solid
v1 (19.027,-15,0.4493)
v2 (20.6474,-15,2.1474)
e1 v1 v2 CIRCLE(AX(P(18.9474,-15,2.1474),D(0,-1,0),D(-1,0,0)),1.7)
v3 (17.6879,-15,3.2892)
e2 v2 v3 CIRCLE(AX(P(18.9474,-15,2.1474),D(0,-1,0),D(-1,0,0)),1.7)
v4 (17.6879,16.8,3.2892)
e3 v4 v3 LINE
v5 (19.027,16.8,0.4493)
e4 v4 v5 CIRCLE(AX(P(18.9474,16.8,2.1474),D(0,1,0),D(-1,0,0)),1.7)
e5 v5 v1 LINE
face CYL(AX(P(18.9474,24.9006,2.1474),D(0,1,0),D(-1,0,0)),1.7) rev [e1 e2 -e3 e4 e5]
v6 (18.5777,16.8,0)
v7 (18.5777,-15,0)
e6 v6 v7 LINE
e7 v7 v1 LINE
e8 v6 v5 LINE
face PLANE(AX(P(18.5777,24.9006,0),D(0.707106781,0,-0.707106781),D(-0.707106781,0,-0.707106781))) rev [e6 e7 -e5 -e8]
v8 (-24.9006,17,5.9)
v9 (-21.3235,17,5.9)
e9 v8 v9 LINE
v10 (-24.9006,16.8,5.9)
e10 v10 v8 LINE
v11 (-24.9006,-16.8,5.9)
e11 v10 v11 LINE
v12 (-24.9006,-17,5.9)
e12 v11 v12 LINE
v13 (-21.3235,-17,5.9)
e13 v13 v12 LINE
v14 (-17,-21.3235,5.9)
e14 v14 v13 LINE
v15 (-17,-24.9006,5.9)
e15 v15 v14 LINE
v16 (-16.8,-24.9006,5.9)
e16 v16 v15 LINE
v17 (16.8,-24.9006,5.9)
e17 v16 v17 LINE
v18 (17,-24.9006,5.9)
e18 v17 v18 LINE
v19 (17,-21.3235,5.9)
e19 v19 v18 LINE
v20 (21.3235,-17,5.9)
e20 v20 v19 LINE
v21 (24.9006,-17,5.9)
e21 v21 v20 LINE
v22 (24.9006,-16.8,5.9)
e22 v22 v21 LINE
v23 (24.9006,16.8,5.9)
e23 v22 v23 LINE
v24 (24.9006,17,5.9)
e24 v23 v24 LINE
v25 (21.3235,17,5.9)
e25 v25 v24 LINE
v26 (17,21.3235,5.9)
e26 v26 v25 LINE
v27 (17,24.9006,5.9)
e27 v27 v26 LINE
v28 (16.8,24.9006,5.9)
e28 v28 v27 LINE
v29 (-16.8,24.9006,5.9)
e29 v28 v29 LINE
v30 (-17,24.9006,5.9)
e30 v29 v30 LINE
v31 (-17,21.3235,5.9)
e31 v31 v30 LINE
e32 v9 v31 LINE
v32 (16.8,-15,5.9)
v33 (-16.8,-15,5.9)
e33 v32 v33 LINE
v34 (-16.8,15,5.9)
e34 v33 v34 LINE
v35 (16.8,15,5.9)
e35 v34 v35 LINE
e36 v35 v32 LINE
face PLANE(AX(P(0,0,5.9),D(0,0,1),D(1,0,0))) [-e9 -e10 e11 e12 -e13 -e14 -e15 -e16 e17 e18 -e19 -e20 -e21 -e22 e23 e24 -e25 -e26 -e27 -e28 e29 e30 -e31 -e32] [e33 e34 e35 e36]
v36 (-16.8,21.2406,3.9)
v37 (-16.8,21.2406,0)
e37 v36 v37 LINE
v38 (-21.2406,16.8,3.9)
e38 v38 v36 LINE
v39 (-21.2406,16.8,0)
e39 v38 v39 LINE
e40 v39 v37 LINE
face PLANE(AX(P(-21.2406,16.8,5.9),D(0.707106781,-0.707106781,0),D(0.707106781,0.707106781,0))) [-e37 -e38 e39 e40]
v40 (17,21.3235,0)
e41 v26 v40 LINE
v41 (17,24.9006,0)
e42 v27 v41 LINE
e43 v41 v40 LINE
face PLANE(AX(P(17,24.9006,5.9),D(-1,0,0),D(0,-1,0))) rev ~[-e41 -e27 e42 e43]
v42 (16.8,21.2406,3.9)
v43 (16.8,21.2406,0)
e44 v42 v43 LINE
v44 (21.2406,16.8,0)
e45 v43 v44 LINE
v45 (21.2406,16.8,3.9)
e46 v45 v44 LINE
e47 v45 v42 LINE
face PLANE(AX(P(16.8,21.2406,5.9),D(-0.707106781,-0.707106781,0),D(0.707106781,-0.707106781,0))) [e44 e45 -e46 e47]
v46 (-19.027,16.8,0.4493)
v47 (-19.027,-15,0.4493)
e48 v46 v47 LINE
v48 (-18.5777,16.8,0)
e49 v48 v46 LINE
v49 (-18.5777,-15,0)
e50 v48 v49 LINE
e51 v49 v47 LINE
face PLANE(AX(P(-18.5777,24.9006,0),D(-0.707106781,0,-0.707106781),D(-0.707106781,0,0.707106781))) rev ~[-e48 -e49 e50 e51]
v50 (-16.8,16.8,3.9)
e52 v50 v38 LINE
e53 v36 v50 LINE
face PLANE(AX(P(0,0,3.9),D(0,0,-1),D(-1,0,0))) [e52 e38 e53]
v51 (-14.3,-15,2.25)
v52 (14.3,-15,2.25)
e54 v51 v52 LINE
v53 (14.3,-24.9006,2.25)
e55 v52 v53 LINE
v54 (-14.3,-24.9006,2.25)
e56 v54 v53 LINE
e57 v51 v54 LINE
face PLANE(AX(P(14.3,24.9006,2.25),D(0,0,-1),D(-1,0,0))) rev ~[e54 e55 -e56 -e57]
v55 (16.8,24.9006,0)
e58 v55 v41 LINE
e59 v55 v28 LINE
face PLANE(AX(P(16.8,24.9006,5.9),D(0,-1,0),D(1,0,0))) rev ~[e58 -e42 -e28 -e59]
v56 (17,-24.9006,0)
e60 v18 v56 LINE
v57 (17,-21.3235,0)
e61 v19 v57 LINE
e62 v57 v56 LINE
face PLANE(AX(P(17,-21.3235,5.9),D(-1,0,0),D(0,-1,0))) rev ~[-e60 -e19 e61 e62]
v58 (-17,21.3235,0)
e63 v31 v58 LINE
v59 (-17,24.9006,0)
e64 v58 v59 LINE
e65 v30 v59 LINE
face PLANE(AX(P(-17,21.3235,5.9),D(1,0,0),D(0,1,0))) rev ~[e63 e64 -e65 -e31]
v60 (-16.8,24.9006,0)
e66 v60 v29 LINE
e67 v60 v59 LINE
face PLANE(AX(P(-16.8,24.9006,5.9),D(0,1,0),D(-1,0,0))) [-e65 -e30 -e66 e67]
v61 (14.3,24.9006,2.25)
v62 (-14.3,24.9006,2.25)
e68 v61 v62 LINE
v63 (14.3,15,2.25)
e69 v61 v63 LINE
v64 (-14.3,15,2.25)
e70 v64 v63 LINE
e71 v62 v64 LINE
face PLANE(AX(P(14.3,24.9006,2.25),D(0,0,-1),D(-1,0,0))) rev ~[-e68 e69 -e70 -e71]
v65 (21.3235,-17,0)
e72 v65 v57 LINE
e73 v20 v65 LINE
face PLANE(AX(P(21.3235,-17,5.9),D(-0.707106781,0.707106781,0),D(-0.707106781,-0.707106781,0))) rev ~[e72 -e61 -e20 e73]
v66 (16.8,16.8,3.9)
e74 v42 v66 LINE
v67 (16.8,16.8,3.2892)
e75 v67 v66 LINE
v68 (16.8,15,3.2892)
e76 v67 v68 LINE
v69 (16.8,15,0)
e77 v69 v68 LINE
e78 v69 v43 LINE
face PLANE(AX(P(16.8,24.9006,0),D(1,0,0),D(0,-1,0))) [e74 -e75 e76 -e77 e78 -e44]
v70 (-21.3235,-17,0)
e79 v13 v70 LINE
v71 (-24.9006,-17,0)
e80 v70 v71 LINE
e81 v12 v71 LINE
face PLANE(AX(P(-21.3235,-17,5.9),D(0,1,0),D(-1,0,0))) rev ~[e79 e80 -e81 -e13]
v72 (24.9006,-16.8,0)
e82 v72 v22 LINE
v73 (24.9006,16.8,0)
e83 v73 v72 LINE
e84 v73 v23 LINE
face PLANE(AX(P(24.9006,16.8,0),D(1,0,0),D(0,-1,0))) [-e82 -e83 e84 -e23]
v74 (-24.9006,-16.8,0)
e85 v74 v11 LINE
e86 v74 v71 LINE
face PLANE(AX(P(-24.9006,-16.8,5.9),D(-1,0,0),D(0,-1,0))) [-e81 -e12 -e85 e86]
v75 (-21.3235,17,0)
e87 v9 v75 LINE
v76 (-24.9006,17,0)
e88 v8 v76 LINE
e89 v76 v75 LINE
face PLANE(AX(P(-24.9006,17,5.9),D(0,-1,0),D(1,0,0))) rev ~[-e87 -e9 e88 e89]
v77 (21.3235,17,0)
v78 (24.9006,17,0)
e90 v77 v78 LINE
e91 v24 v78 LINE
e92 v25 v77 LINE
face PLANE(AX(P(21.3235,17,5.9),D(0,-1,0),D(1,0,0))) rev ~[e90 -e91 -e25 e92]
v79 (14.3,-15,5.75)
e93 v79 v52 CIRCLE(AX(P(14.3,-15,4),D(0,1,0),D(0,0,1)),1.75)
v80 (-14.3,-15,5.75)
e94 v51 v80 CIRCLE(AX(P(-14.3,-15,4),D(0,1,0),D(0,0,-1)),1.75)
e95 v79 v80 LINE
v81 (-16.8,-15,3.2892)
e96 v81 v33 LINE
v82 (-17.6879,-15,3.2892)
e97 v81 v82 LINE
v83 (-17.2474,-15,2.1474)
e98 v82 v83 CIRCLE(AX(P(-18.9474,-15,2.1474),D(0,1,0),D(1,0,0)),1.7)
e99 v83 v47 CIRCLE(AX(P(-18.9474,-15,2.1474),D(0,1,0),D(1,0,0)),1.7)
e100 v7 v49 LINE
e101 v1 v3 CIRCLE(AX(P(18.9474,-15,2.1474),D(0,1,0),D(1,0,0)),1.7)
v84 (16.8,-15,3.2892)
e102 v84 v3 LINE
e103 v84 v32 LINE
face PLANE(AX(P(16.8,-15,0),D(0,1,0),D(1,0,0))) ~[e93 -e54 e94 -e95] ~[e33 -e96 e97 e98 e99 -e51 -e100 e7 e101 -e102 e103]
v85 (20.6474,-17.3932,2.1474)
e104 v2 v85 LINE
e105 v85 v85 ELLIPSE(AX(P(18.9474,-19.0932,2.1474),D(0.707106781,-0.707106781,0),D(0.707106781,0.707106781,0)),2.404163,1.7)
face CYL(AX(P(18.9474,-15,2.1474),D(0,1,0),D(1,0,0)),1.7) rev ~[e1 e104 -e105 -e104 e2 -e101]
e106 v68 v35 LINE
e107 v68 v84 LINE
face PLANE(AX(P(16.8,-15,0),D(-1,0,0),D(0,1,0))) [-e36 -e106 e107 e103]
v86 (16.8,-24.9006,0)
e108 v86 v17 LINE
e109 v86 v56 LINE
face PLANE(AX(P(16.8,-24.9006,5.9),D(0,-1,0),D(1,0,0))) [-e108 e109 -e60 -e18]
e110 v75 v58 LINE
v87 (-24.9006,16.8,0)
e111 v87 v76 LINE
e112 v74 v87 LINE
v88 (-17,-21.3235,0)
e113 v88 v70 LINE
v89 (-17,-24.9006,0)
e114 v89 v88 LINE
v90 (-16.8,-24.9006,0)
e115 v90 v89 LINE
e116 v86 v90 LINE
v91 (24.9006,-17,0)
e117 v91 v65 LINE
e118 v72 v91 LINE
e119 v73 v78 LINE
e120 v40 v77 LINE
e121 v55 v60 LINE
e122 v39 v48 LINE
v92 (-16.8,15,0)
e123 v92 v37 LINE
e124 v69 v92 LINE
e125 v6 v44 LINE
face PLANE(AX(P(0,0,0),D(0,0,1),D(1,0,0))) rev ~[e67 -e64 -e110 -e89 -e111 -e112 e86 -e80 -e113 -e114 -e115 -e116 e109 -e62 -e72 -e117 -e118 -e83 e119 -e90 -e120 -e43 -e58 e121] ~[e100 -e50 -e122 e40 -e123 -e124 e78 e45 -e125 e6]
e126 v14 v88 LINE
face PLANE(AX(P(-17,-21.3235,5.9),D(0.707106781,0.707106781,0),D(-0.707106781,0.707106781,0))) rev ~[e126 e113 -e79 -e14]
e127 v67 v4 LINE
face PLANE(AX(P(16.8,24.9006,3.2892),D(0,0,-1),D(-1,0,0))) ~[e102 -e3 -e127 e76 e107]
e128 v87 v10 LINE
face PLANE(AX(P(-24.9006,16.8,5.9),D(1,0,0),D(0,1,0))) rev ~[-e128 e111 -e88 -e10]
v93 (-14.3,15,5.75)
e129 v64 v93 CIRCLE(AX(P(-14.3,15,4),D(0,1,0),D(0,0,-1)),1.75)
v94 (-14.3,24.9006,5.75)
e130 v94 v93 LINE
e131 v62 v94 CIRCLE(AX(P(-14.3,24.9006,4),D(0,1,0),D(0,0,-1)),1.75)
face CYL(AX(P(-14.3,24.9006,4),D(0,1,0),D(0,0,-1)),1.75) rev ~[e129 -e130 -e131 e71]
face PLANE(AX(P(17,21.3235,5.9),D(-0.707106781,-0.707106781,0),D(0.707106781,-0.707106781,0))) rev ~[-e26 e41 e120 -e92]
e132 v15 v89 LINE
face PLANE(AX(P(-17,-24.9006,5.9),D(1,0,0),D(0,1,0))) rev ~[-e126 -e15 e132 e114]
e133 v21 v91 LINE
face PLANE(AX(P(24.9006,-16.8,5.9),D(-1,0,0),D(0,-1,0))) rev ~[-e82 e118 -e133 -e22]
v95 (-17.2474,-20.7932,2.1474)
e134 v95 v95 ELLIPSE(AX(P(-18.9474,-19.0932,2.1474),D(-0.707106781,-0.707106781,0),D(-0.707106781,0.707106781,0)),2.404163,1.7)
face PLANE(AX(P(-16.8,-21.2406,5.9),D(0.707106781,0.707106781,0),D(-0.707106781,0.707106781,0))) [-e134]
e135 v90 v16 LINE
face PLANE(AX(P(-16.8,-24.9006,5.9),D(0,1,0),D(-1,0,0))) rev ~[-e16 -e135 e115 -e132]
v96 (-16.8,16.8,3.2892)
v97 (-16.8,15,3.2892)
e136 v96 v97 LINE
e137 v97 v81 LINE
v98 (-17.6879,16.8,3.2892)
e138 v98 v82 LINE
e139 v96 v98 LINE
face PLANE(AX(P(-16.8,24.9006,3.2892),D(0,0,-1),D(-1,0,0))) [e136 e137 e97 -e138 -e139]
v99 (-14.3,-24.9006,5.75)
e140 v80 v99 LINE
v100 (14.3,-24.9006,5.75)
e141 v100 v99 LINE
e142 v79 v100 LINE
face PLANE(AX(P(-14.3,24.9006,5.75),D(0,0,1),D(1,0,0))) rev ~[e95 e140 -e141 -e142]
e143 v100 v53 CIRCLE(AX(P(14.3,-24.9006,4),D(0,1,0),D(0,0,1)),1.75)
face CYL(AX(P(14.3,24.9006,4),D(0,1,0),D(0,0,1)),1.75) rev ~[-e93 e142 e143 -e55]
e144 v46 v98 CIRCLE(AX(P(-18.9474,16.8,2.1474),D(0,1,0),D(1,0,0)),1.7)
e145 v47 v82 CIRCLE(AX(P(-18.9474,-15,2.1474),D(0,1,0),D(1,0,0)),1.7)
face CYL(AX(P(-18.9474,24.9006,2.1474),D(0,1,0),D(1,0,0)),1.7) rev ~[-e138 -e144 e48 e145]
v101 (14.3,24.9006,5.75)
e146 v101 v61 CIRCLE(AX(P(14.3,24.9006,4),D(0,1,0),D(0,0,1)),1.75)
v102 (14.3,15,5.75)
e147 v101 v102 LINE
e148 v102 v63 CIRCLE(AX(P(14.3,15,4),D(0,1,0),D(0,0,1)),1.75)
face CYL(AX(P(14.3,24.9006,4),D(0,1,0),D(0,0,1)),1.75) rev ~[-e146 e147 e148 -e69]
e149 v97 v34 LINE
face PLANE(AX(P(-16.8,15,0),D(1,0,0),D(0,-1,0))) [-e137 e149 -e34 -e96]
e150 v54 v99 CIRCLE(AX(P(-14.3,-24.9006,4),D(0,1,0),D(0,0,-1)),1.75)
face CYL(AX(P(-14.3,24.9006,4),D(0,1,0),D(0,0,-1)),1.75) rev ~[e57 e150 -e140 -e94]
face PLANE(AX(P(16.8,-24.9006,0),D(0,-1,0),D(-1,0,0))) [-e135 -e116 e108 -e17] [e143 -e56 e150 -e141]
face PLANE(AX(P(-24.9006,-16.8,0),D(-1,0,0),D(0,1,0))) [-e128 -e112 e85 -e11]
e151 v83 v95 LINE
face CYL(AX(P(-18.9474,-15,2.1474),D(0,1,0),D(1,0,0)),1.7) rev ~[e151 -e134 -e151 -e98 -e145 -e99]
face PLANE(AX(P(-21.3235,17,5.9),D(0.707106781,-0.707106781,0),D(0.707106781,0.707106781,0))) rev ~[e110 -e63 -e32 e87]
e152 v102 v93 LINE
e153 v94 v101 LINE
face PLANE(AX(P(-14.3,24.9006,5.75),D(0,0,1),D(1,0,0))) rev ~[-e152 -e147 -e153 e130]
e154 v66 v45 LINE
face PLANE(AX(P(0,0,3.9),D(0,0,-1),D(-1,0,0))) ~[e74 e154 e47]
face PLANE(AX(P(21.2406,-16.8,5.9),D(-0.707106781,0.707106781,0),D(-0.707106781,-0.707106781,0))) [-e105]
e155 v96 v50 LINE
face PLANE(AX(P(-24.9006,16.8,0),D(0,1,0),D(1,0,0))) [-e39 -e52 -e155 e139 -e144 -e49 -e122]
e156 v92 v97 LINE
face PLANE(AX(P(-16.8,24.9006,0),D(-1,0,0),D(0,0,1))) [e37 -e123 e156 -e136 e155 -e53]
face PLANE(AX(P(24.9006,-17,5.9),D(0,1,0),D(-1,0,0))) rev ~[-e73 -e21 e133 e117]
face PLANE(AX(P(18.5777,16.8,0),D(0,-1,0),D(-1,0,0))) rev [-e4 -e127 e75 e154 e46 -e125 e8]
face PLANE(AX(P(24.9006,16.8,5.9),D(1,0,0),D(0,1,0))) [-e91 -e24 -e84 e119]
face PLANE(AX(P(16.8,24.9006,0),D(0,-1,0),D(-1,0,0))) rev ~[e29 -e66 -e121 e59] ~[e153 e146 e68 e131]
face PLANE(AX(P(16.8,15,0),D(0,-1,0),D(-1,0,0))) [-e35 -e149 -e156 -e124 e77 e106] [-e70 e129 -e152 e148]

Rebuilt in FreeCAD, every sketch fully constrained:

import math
import FreeCAD as App
import Part
import Sketcher
from FreeCAD import Vector
Q = App.Units.Quantity


def add_polygon(sketch, points):
    """Adds a closed chain of lines whose ends are joined by coincident constraints."""
    first, n = sketch.GeometryCount, len(points)
    for a, b in zip(points, points[1:] + points[:1]):
        sketch.addGeometry(Part.LineSegment(App.Vector(*a, 0), App.Vector(*b, 0)), False)
    for i in range(n):
        sketch.addConstraint(Sketcher.Constraint("Coincident", first + i, 2, first + (i + 1) % n, 1))

doc = App.newDocument("Part")
params = doc.addObject("Spreadsheet::Sheet", "Params")
for row, (alias, value) in enumerate([
    ("sketch1_height", "30 mm"),
    ("sketch1_width", "33.6 mm"),
    ("sketch1_width2", "3.66 mm"),
    ("sketch1_length", "6.28 mm"),
    ("pad1_length", "8 mm"),
    ("sketch2_radius", "1.7 mm"),
    ("pocket1_length", "39.9006 mm"),
    ("sketch3_length", "6.28 mm"),
    ("pocket2_length", "3.9 mm"),
    ("sketch4_diameter", "3.4 mm"),
    ("pocket3_length", "10 mm"),
    ("sketch5_radius", "1.75 mm"),
    ("sketch5_width", "28.6 mm"),
    ("sketch6_height", "30 mm"),
    ("sketch6_width", "33.6 mm"),
    ("sketch6_width2", "3.66 mm"),
    ("sketch6_length", "6.28 mm"),
    ("pocket5_length", "2.1 mm"),
    ("sketch7_width", "0.2 mm"),
    ("sketch7_width2", "3.66 mm"),
    ("sketch7_length", "6.28 mm"),
    ("pad2_length", "5.9 mm"),
], start=1):
    params.set(f"A{row}", alias)
    params.set(f"B{row}", "=" + value)
    params.setAlias(f"B{row}", alias)

body = doc.addObject("PartDesign::Body", "Body")

sketch1 = doc.addObject("Sketcher::SketchObject", "Sketch")
body.addObject(sketch1)
sketch1.AttachmentSupport = (doc.XY_Plane, [""])
sketch1.MapMode = "FlatFace"
add_polygon(sketch1, [(16.8, 21.2406), (16.8, 24.9006), (-16.8, 24.9006), (-16.8, 21.2406), (-21.2406, 16.8), (-24.9006, 16.8), (-24.9006, -16.8), (-21.2406, -16.8), (-16.8, -21.2406), (-16.8, -24.9006), (16.8, -24.9006), (16.8, -21.2406), (21.2406, -16.8), (24.9006, -16.8), (24.9006, 16.8), (21.2406, 16.8)])
add_polygon(sketch1, [(16.8, -15), (-16.8, -15), (-16.8, 15), (16.8, 15)])
sketch1.addConstraint([
    Sketcher.Constraint("Vertical", 0),
    Sketcher.Constraint("Horizontal", 1),
    Sketcher.Constraint("Vertical", 2),
    Sketcher.Constraint("Horizontal", 4),
    Sketcher.Constraint("Vertical", 5),
    Sketcher.Constraint("Horizontal", 6),
    Sketcher.Constraint("Vertical", 8),
    Sketcher.Constraint("Horizontal", 9),
    Sketcher.Constraint("Vertical", 10),
    Sketcher.Constraint("Horizontal", 12),
    Sketcher.Constraint("Vertical", 13),
    Sketcher.Constraint("Horizontal", 14),
    Sketcher.Constraint("Horizontal", 16),
    Sketcher.Constraint("Vertical", 17),
    Sketcher.Constraint("Horizontal", 18),
    Sketcher.Constraint("Vertical", 19),
    Sketcher.Constraint("Symmetric", 0, 2, 8, 2, -1, 1),
    Sketcher.Constraint("Symmetric", 2, 2, 10, 2, -1, 1),
    Sketcher.Constraint("Symmetric", 3, 2, 11, 2, -1, 1),
    Sketcher.Constraint("Symmetric", 5, 2, 13, 2, -1, 1),
    Sketcher.Constraint("Symmetric", 16, 2, 18, 2, -1, 1),
    Sketcher.Constraint("Symmetric", 7, 2, 10, 2, -2),
    Sketcher.Constraint("Symmetric", 6, 2, 11, 2, -2),
    Sketcher.Constraint("Perpendicular", 3, 7),
    Sketcher.Constraint("Perpendicular", 11, 15),
    Sketcher.Constraint("Horizontal", 2, 2, 15, 2),
    Sketcher.Constraint("Vertical", 8, 2, 16, 2),
    Sketcher.Constraint("Equal", 14, 0),
    Sketcher.Constraint("Equal", 18, 5),
    Sketcher.Constraint("DistanceY", 17, 1, 17, 2, Q("30 mm")),
    Sketcher.Constraint("DistanceX", 1, 2, 1, 1, Q("33.6 mm")),
    Sketcher.Constraint("DistanceX", 4, 2, 4, 1, Q("3.66 mm")),
    Sketcher.Constraint("Distance", 3, Q("6.28 mm")),
])
sketch1.setExpression("Constraints[49]", "Params.sketch1_height")
sketch1.setExpression("Constraints[50]", "Params.sketch1_width")
sketch1.setExpression("Constraints[51]", "Params.sketch1_width2")
sketch1.setExpression("Constraints[52]", "Params.sketch1_length")
pad1 = doc.addObject("PartDesign::Pad", "Pad")
body.addObject(pad1)
pad1.Profile = sketch1
pad1.setExpression("Length", "Params.pad1_length")

sketch2 = doc.addObject("Sketcher::SketchObject", "Sketch001")
body.addObject(sketch2)
sketch2.AttachmentSupport = (doc.XZ_Plane, [""])
sketch2.MapMode = "FlatFace"
sketch2.AttachmentOffset = App.Placement(Vector(0, 0, -24.9006), App.Rotation())
sketch2.addGeometry([
    Part.ArcOfCircle(Part.Circle(Vector(-18.9474, 2.1474, 0), Vector(0, 0, 1), 1.7), math.radians(42.193886), math.radians(267.316172)),
    Part.LineSegment(Vector(-17.6879, 3.2892, 0), Vector(-16.8, 3.2892, 0)),
    Part.LineSegment(Vector(-16.8, 3.2892, 0), Vector(-16.8, 0, 0)),
    Part.LineSegment(Vector(-16.8, 0, 0), Vector(-18.5777, 0, 0)),
    Part.LineSegment(Vector(-18.5777, 0, 0), Vector(-19.027, 0.4493, 0)),
], False)
sketch2.addConstraint([
    Sketcher.Constraint("Coincident", 0, 1, 1, 1),
    Sketcher.Constraint("Coincident", 1, 2, 2, 1),
    Sketcher.Constraint("Coincident", 2, 2, 3, 1),
    Sketcher.Constraint("Coincident", 3, 2, 4, 1),
    Sketcher.Constraint("Coincident", 4, 2, 0, 2),
    Sketcher.Constraint("Horizontal", 1),
    Sketcher.Constraint("Vertical", 2),
    Sketcher.Constraint("Horizontal", 3),
    Sketcher.Constraint("PointOnObject", 2, 2, -1),
    Sketcher.Constraint("Radius", 0, Q("1.7 mm")),
    Sketcher.Constraint("Angle", 4, Q("135 deg")),
    Sketcher.Constraint("DistanceX", 1, 2, -1, 1, Q("16.8 mm")),
    Sketcher.Constraint("DistanceX", 1, 1, 1, 2, Q("0.888 mm")),
    Sketcher.Constraint("DistanceY", 4, 2, 0, 1, Q("2.84 mm")),
    Sketcher.Constraint("DistanceX", 3, 2, 3, 1, Q("1.7777 mm")),
    Sketcher.Constraint("DistanceY", 2, 2, 2, 1, Q("3.2892 mm")),
])
sketch2.setExpression("Constraints[9]", "Params.sketch2_radius")
pocket1 = doc.addObject("PartDesign::Pocket", "Pocket")
body.addObject(pocket1)
pocket1.Profile = sketch2
pocket1.setExpression("Length", "Params.pocket1_length")
pocket1.Reversed = True

sketch3 = doc.addObject("Sketcher::SketchObject", "Sketch002")
body.addObject(sketch3)
sketch3.AttachmentSupport = (doc.XY_Plane, [""])
sketch3.MapMode = "FlatFace"
add_polygon(sketch3, [(-21.2406, 16.8), (-16.8, 21.2406), (-16.8, 16.8)])
sketch3.addConstraint([
    Sketcher.Constraint("Vertical", 1),
    Sketcher.Constraint("Horizontal", 2),
    Sketcher.Constraint("Equal", 2, 1),
    Sketcher.Constraint("DistanceX", 0, 2, -1, 1, Q("16.8 mm")),
    Sketcher.Constraint("DistanceY", -1, 1, 1, 2, Q("16.8 mm")),
    Sketcher.Constraint("Distance", 0, Q("6.28 mm")),
])
sketch3.setExpression("Constraints[8]", "Params.sketch3_length")
pocket2 = doc.addObject("PartDesign::Pocket", "Pocket001")
body.addObject(pocket2)
pocket2.Profile = sketch3
pocket2.setExpression("Length", "Params.pocket2_length")
pocket2.Reversed = True
doc.recompute()

mirrored = doc.addObject("PartDesign::Mirrored", "Mirrored")
body.addObject(mirrored)
mirrored.Originals = [pocket2, pocket1]
mirrored.MirrorPlane = (doc.YZ_Plane, [""])
body.Tip = mirrored

sketch4 = doc.addObject("Sketcher::SketchObject", "Sketch003")
body.addObject(sketch4)
sketch4.AttachmentSupport = (doc.XZ_Plane, [""])
sketch4.MapMode = "FlatFace"
sketch4.AttachmentOffset = App.Placement(Vector(0, 0, 15), App.Rotation())
sketch4.addGeometry([
    Part.Circle(Vector(18.9474, 2.1474, 0), Vector(0, 0, 1), 1.7),
    Part.Circle(Vector(-18.9474, 2.1474, 0), Vector(0, 0, 1), 1.7),
], False)
sketch4.addConstraint([
    Sketcher.Constraint("Equal", 0, 1),
    Sketcher.Constraint("Symmetric", 0, 3, 1, 3, -2),
    Sketcher.Constraint("Diameter", 0, Q("3.4 mm")),
    Sketcher.Constraint("DistanceX", -1, 1, 0, 3, Q("18.9474 mm")),
    Sketcher.Constraint("DistanceY", -1, 1, 0, 3, Q("2.1474 mm")),
])
sketch4.setExpression("Constraints[2]", "Params.sketch4_diameter")
pocket3 = doc.addObject("PartDesign::Pocket", "Pocket002")
body.addObject(pocket3)
pocket3.Profile = sketch4
pocket3.setExpression("Length", "Params.pocket3_length")
pocket3.Reversed = True

sketch5 = doc.addObject("Sketcher::SketchObject", "Sketch004")
body.addObject(sketch5)
sketch5.AttachmentSupport = (doc.XZ_Plane, [""])
sketch5.MapMode = "FlatFace"
sketch5.AttachmentOffset = App.Placement(Vector(0, 0, -24.9006), App.Rotation())
sketch5.addGeometry([
    Part.ArcOfCircle(Part.Circle(Vector(-14.3, 4, 0), Vector(0, 0, 1), 1.75), math.radians(90), math.radians(270)),
    Part.LineSegment(Vector(-14.3, 5.75, 0), Vector(14.3, 5.75, 0)),
    Part.ArcOfCircle(Part.Circle(Vector(14.3, 4, 0), Vector(0, 0, 1), 1.75), math.radians(-90), math.radians(90)),
    Part.LineSegment(Vector(14.3, 2.25, 0), Vector(-14.3, 2.25, 0)),
], False)
sketch5.addConstraint([
    Sketcher.Constraint("Tangent", 0, 1, 1, 1),
    Sketcher.Constraint("Tangent", 1, 2, 2, 2),
    Sketcher.Constraint("Tangent", 2, 1, 3, 1),
    Sketcher.Constraint("Tangent", 3, 2, 0, 2),
    Sketcher.Constraint("Horizontal", 1),
    Sketcher.Constraint("Horizontal", 3),
    Sketcher.Constraint("Radius", 0, Q("1.75 mm")),
    Sketcher.Constraint("DistanceX", 1, 1, 1, 2, Q("28.6 mm")),
    Sketcher.Constraint("DistanceY", -1, 1, 0, 3, Q("4 mm")),
    Sketcher.Constraint("DistanceX", 0, 3, -1, 1, Q("14.3 mm")),
])
sketch5.setExpression("Constraints[6]", "Params.sketch5_radius")
sketch5.setExpression("Constraints[7]", "Params.sketch5_width")
pocket4 = doc.addObject("PartDesign::Pocket", "Pocket003")
body.addObject(pocket4)
pocket4.Profile = sketch5
pocket4.Type = "ThroughAll"
pocket4.Reversed = True

sketch6 = doc.addObject("Sketcher::SketchObject", "Sketch005")
body.addObject(sketch6)
sketch6.AttachmentSupport = (doc.XY_Plane, [""])
sketch6.MapMode = "FlatFace"
sketch6.AttachmentOffset = App.Placement(Vector(0, 0, 8), App.Rotation())
add_polygon(sketch6, [(21.2406, 16.8), (16.8, 21.2406), (16.8, 24.9006), (-16.8, 24.9006), (-16.8, 21.2406), (-21.2406, 16.8), (-24.9006, 16.8), (-24.9006, -16.8), (-21.2406, -16.8), (-16.8, -21.2406), (-16.8, -24.9006), (16.8, -24.9006), (16.8, -21.2406), (21.2406, -16.8), (24.9006, -16.8), (24.9006, 16.8)])
add_polygon(sketch6, [(16.8, -15), (-16.8, -15), (-16.8, 15), (16.8, 15)])
sketch6.addConstraint([
    Sketcher.Constraint("Vertical", 1),
    Sketcher.Constraint("Horizontal", 2),
    Sketcher.Constraint("Vertical", 3),
    Sketcher.Constraint("Horizontal", 5),
    Sketcher.Constraint("Vertical", 6),
    Sketcher.Constraint("Horizontal", 7),
    Sketcher.Constraint("Vertical", 9),
    Sketcher.Constraint("Horizontal", 10),
    Sketcher.Constraint("Vertical", 11),
    Sketcher.Constraint("Horizontal", 13),
    Sketcher.Constraint("Vertical", 14),
    Sketcher.Constraint("Horizontal", 15),
    Sketcher.Constraint("Horizontal", 16),
    Sketcher.Constraint("Vertical", 17),
    Sketcher.Constraint("Horizontal", 18),
    Sketcher.Constraint("Vertical", 19),
    Sketcher.Constraint("Symmetric", 0, 2, 8, 2, -1, 1),
    Sketcher.Constraint("Symmetric", 2, 2, 10, 2, -1, 1),
    Sketcher.Constraint("Symmetric", 4, 2, 12, 2, -1, 1),
    Sketcher.Constraint("Symmetric", 6, 2, 14, 2, -1, 1),
    Sketcher.Constraint("Symmetric", 16, 2, 18, 2, -1, 1),
    Sketcher.Constraint("Symmetric", 0, 2, 3, 2, -2),
    Sketcher.Constraint("Symmetric", 7, 2, 12, 2, -2),
    Sketcher.Constraint("Perpendicular", 0, 4),
    Sketcher.Constraint("Perpendicular", 4, 8),
    Sketcher.Constraint("Perpendicular", 8, 12),
    Sketcher.Constraint("Vertical", 9, 2, 16, 2),
    Sketcher.Constraint("Equal", 15, 1),
    Sketcher.Constraint("Equal", 18, 6),
    Sketcher.Constraint("DistanceY", 17, 1, 17, 2, Q("30 mm")),
    Sketcher.Constraint("DistanceX", 2, 2, 2, 1, Q("33.6 mm")),
    Sketcher.Constraint("DistanceX", 5, 2, 5, 1, Q("3.66 mm")),
    Sketcher.Constraint("Distance", 0, Q("6.28 mm")),
])
sketch6.setExpression("Constraints[49]", "Params.sketch6_height")
sketch6.setExpression("Constraints[50]", "Params.sketch6_width")
sketch6.setExpression("Constraints[51]", "Params.sketch6_width2")
sketch6.setExpression("Constraints[52]", "Params.sketch6_length")
pocket5 = doc.addObject("PartDesign::Pocket", "Pocket004")
body.addObject(pocket5)
pocket5.Profile = sketch6
pocket5.setExpression("Length", "Params.pocket5_length")

sketch7 = doc.addObject("Sketcher::SketchObject", "Sketch006")
body.addObject(sketch7)
sketch7.AttachmentSupport = (doc.XY_Plane, [""])
sketch7.MapMode = "FlatFace"
sketch7.AttachmentOffset = App.Placement(Vector(0, 0, 5.9), App.Rotation())
add_polygon(sketch7, [(17, 24.9006), (16.8, 24.9006), (16.8, 21.2406), (21.2406, 16.8), (24.9006, 16.8), (24.9006, 17), (21.3235, 17), (17, 21.3235)])
add_polygon(sketch7, [(-21.2406, 16.8), (-16.8, 21.2406), (-16.8, 24.9006), (-17, 24.9006), (-17, 21.3235), (-21.3235, 17), (-24.9006, 17), (-24.9006, 16.8)])
add_polygon(sketch7, [(-16.8, -21.2406), (-21.2406, -16.8), (-24.9006, -16.8), (-24.9006, -17), (-21.3235, -17), (-17, -21.3235), (-17, -24.9006), (-16.8, -24.9006)])
add_polygon(sketch7, [(21.2406, -16.8), (16.8, -21.2406), (16.8, -24.9006), (17, -24.9006), (17, -21.3235), (21.3235, -17), (24.9006, -17), (24.9006, -16.8)])
sketch7.addConstraint([
    Sketcher.Constraint("Horizontal", 0),
    Sketcher.Constraint("Vertical", 1),
    Sketcher.Constraint("Horizontal", 3),
    Sketcher.Constraint("Vertical", 4),
    Sketcher.Constraint("Horizontal", 5),
    Sketcher.Constraint("Vertical", 7),
    Sketcher.Constraint("Vertical", 9),
    Sketcher.Constraint("Horizontal", 10),
    Sketcher.Constraint("Vertical", 11),
    Sketcher.Constraint("Horizontal", 13),
    Sketcher.Constraint("Vertical", 14),
    Sketcher.Constraint("Horizontal", 15),
    Sketcher.Constraint("Horizontal", 17),
    Sketcher.Constraint("Vertical", 18),
    Sketcher.Constraint("Horizontal", 19),
    Sketcher.Constraint("Vertical", 21),
    Sketcher.Constraint("Horizontal", 22),
    Sketcher.Constraint("Vertical", 23),
    Sketcher.Constraint("Vertical", 25),
    Sketcher.Constraint("Horizontal", 26),
    Sketcher.Constraint("Vertical", 27),
    Sketcher.Constraint("Horizontal", 29),
    Sketcher.Constraint("Vertical", 30),
    Sketcher.Constraint("Horizontal", 31),
    Sketcher.Constraint("Symmetric", 2, 2, 16, 2, -1, 1),
    Sketcher.Constraint("Symmetric", 4, 2, 18, 2, -1, 1),
    Sketcher.Constraint("Symmetric", 6, 2, 20, 2, -1, 1),
    Sketcher.Constraint("Symmetric", 0, 2, 22, 2, -1, 1),
    Sketcher.Constraint("Symmetric", 8, 2, 24, 2, -1, 1),
    Sketcher.Constraint("Symmetric", 10, 2, 26, 2, -1, 1),
    Sketcher.Constraint("Symmetric", 12, 2, 28, 2, -1, 1),
    Sketcher.Constraint("Symmetric", 14, 2, 30, 2, -1, 1),
    Sketcher.Constraint("Symmetric", 1, 2, 8, 2, -2),
    Sketcher.Constraint("Symmetric", 7, 2, 10, 2, -2),
    Sketcher.Constraint("Symmetric", 5, 2, 12, 2, -2),
    Sketcher.Constraint("Symmetric", 3, 2, 14, 2, -2),
    Sketcher.Constraint("Parallel", 2, 6),
    Sketcher.Constraint("Perpendicular", 6, 8),
    Sketcher.Constraint("Parallel", 8, 12),
    Sketcher.Constraint("Perpendicular", 12, 16),
    Sketcher.Constraint("Parallel", 16, 20),
    Sketcher.Constraint("Perpendicular", 20, 24),
    Sketcher.Constraint("Parallel", 24, 28),
    Sketcher.Constraint("Horizontal", 6, 2, 11, 2),
    Sketcher.Constraint("Equal", 31, 1),
    Sketcher.Constraint("Equal", 26, 4),
    Sketcher.Constraint("DistanceX", 0, 2, 0, 1, Q("0.2 mm")),
    Sketcher.Constraint("DistanceY", -1, 1, 4, 2, Q("17 mm")),
    Sketcher.Constraint("DistanceX", -1, 1, 6, 2, Q("17 mm")),
    Sketcher.Constraint("DistanceX", 3, 1, 3, 2, Q("3.66 mm")),
    Sketcher.Constraint("Distance", 2, Q("6.28 mm")),
    Sketcher.Constraint("DistanceX", 5, 2, 5, 1, Q("3.577 mm")),
])
sketch7.setExpression("Constraints[78]", "Params.sketch7_width")
sketch7.setExpression("Constraints[81]", "Params.sketch7_width2")
sketch7.setExpression("Constraints[82]", "Params.sketch7_length")
pad2 = doc.addObject("PartDesign::Pad", "Pad001")
body.addObject(pad2)
pad2.Profile = sketch7
pad2.setExpression("Length", "Params.pad2_length")
pad2.Reversed = True

doc.recompute()
